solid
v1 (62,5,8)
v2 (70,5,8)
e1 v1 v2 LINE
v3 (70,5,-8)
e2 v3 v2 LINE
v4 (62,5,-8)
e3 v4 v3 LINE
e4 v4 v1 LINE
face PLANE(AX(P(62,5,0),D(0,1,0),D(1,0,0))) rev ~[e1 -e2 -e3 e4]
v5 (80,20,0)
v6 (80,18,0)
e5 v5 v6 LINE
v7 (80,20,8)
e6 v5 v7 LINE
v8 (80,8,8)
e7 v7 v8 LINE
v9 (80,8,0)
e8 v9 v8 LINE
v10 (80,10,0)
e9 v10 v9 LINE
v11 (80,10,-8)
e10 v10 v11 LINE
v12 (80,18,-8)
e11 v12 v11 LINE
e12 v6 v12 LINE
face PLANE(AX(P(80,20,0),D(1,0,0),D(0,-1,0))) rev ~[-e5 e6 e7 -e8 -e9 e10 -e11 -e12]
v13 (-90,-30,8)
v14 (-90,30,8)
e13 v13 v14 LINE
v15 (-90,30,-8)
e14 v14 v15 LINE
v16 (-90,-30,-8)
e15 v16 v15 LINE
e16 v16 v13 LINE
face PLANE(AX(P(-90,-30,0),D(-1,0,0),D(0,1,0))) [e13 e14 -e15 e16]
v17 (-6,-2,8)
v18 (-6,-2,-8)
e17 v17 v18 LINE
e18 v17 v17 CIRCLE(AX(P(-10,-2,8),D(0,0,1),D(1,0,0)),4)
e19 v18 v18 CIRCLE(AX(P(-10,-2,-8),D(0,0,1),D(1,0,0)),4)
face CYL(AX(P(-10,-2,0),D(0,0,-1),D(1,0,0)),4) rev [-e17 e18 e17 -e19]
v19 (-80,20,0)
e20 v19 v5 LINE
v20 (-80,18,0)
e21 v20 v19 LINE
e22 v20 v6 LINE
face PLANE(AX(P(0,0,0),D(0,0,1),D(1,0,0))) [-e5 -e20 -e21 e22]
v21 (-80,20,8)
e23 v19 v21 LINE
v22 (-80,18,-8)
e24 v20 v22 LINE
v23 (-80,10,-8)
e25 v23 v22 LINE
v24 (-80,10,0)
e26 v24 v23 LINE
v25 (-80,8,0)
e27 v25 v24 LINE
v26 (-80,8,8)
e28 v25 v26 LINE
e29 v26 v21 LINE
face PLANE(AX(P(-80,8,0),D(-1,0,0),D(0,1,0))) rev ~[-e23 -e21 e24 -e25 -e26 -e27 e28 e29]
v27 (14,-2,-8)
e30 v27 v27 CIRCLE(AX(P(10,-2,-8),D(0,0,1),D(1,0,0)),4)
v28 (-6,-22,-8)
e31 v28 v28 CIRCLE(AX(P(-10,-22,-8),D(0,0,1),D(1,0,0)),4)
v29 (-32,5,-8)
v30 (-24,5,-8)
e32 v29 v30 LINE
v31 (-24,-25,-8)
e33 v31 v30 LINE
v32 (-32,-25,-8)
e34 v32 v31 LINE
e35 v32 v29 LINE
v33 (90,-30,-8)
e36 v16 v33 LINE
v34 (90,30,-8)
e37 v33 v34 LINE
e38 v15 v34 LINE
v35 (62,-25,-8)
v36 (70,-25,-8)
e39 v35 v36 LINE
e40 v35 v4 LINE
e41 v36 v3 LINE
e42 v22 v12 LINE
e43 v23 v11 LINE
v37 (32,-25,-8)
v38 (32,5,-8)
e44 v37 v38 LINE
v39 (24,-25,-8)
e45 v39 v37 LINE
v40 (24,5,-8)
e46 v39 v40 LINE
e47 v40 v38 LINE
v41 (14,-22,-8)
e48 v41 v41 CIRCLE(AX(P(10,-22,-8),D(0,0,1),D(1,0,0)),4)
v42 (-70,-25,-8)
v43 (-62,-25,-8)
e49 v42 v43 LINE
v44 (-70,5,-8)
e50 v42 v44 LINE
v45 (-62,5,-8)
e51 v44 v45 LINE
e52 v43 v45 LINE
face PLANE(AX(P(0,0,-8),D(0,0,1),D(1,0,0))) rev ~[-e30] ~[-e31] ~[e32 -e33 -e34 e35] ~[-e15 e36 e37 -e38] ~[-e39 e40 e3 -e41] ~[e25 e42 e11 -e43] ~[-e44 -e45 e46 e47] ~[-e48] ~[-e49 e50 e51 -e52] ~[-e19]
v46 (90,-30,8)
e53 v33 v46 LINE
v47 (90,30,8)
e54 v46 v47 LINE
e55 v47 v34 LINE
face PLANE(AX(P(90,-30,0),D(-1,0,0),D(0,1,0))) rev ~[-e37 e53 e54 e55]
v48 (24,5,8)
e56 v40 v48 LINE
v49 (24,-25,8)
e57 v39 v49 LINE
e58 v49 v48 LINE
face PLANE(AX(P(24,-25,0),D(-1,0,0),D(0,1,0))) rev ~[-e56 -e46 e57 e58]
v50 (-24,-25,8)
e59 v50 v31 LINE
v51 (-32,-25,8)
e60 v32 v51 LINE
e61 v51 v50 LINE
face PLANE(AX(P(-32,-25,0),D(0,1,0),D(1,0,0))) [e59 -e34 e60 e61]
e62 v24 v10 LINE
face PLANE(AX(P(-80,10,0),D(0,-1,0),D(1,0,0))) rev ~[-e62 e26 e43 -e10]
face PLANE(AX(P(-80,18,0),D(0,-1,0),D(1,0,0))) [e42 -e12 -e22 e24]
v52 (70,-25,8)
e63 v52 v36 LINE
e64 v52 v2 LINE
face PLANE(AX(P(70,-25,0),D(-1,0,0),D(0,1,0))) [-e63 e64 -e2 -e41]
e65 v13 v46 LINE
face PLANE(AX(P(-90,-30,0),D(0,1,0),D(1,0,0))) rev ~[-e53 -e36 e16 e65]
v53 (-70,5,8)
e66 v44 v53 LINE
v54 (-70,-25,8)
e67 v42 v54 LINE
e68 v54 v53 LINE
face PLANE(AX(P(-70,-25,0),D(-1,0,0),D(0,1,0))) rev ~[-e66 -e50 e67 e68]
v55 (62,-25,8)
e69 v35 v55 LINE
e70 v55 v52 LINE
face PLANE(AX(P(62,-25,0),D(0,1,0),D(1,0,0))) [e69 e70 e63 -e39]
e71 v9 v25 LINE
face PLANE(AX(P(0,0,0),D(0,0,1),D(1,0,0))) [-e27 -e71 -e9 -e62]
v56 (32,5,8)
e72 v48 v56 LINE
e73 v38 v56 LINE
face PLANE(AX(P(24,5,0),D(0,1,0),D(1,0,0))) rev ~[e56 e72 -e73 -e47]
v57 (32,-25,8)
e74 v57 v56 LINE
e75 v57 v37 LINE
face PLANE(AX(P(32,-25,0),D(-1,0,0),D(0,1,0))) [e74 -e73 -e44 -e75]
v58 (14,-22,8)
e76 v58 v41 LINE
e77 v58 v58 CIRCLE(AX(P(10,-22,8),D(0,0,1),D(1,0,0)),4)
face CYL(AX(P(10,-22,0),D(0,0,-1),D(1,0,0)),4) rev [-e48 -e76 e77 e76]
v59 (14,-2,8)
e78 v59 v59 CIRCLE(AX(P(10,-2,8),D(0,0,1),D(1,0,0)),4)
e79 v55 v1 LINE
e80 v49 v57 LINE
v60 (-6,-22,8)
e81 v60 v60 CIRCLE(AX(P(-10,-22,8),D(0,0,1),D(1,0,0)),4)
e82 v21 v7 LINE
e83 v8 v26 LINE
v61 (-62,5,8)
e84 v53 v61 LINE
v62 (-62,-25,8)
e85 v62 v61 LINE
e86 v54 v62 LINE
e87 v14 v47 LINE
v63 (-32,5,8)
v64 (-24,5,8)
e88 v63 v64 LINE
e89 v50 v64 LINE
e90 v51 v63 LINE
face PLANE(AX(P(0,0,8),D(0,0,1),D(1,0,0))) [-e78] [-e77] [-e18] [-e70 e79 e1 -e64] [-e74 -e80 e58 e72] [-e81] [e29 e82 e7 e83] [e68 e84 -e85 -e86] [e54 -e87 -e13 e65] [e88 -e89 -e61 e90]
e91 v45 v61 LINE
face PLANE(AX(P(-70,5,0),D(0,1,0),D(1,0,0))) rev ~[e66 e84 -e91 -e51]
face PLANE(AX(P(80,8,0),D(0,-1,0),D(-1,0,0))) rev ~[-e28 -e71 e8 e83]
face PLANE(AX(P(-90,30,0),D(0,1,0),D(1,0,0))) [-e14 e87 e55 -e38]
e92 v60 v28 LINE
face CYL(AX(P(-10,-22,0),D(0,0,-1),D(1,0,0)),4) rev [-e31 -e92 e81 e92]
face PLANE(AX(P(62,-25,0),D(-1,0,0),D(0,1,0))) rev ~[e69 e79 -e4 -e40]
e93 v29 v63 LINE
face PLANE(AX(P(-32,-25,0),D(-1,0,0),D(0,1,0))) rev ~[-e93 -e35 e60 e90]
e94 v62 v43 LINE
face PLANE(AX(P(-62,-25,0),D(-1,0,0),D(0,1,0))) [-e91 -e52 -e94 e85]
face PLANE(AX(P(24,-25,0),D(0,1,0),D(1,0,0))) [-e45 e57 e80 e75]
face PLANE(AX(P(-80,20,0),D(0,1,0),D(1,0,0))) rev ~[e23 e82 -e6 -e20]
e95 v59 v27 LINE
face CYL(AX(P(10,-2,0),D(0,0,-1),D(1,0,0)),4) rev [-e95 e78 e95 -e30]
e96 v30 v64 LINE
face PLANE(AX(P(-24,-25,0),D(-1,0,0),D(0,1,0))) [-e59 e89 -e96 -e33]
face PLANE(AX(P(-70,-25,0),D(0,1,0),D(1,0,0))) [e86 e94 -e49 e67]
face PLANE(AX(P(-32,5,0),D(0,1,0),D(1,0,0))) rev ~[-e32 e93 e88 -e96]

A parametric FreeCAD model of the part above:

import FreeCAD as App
import Part
import Sketcher

doc = App.newDocument("Part")
params = doc.addObject("Spreadsheet::Sheet", "Params")
for row, (alias, value) in enumerate([
    ("sketch1_diameter", "8 mm"),
    ("sketch1_width", "180 mm"),
    ("sketch1_width2", "8 mm"),
    ("sketch1_width3", "160 mm"),
    ("sketch1_height", "60 mm"),
    ("pad1_length", "8 mm"),
    ("sketch2_diameter", "8 mm"),
    ("sketch2_width", "180 mm"),
    ("sketch2_width2", "8 mm"),
    ("sketch2_width3", "160 mm"),
    ("sketch2_height", "60 mm"),
    ("pad2_length", "8 mm"),
], start=1):
    params.set(f"A{row}", alias)
    params.set(f"B{row}", "=" + value)
    params.setAlias(f"B{row}", alias)

body = doc.addObject("PartDesign::Body", "Body")

# Sketch on XY plane
sketch1 = body.newObject("Sketcher::SketchObject", "Sketch")
sketch1.AttachmentSupport = (doc.getObject("XY_Plane"), [""])
sketch1.MapMode = "FlatFace"
sketch1.addGeometry([
    Part.LineSegment(App.Vector(-90, 30, 0), App.Vector(-90, -30, 0)),  # 0
    Part.LineSegment(App.Vector(-90, -30, 0), App.Vector(90, -30, 0)),  # 1
    Part.LineSegment(App.Vector(90, -30, 0), App.Vector(90, 30, 0)),  # 2
    Part.LineSegment(App.Vector(90, 30, 0), App.Vector(-90, 30, 0)),  # 3
    Part.Circle(App.Vector(-10, -22, 0), App.Vector(0, 0, 1), 4),  # 4
    Part.LineSegment(App.Vector(-62, -25, 0), App.Vector(-70, -25, 0)),  # 5
    Part.LineSegment(App.Vector(-70, -25, 0), App.Vector(-70, 5, 0)),  # 6
    Part.LineSegment(App.Vector(-70, 5, 0), App.Vector(-62, 5, 0)),  # 7
    Part.LineSegment(App.Vector(-62, 5, 0), App.Vector(-62, -25, 0)),  # 8
    Part.LineSegment(App.Vector(-24, -25, 0), App.Vector(-32, -25, 0)),  # 9
    Part.LineSegment(App.Vector(-32, -25, 0), App.Vector(-32, 5, 0)),  # 10
    Part.LineSegment(App.Vector(-32, 5, 0), App.Vector(-24, 5, 0)),  # 11
    Part.LineSegment(App.Vector(-24, 5, 0), App.Vector(-24, -25, 0)),  # 12
    Part.Circle(App.Vector(10, -22, 0), App.Vector(0, 0, 1), 4),  # 13
    Part.LineSegment(App.Vector(32, -25, 0), App.Vector(24, -25, 0)),  # 14
    Part.LineSegment(App.Vector(24, -25, 0), App.Vector(24, 5, 0)),  # 15
    Part.LineSegment(App.Vector(24, 5, 0), App.Vector(32, 5, 0)),  # 16
    Part.LineSegment(App.Vector(32, 5, 0), App.Vector(32, -25, 0)),  # 17
    Part.LineSegment(App.Vector(70, -25, 0), App.Vector(62, -25, 0)),  # 18
    Part.LineSegment(App.Vector(62, -25, 0), App.Vector(62, 5, 0)),  # 19
    Part.LineSegment(App.Vector(62, 5, 0), App.Vector(70, 5, 0)),  # 20
    Part.LineSegment(App.Vector(70, 5, 0), App.Vector(70, -25, 0)),  # 21
    Part.Circle(App.Vector(-10, -2, 0), App.Vector(0, 0, 1), 4),  # 22
    Part.Circle(App.Vector(10, -2, 0), App.Vector(0, 0, 1), 4),  # 23
    Part.LineSegment(App.Vector(-80, 10, 0), App.Vector(-80, 18, 0)),  # 24
    Part.LineSegment(App.Vector(-80, 18, 0), App.Vector(80, 18, 0)),  # 25
    Part.LineSegment(App.Vector(80, 18, 0), App.Vector(80, 10, 0)),  # 26
    Part.LineSegment(App.Vector(80, 10, 0), App.Vector(-80, 10, 0)),  # 27
], False)
sketch1.addConstraint([
    Sketcher.Constraint("Coincident", 0, 2, 1, 1),
    Sketcher.Constraint("Coincident", 1, 2, 2, 1),
    Sketcher.Constraint("Coincident", 2, 2, 3, 1),
    Sketcher.Constraint("Coincident", 3, 2, 0, 1),
    Sketcher.Constraint("Coincident", 5, 2, 6, 1),
    Sketcher.Constraint("Coincident", 6, 2, 7, 1),
    Sketcher.Constraint("Coincident", 7, 2, 8, 1),
    Sketcher.Constraint("Coincident", 8, 2, 5, 1),
    Sketcher.Constraint("Coincident", 9, 2, 10, 1),
    Sketcher.Constraint("Coincident", 10, 2, 11, 1),
    Sketcher.Constraint("Coincident", 11, 2, 12, 1),
    Sketcher.Constraint("Coincident", 12, 2, 9, 1),
    Sketcher.Constraint("Coincident", 14, 2, 15, 1),
    Sketcher.Constraint("Coincident", 15, 2, 16, 1),
    Sketcher.Constraint("Coincident", 16, 2, 17, 1),
    Sketcher.Constraint("Coincident", 17, 2, 14, 1),
    Sketcher.Constraint("Coincident", 18, 2, 19, 1),
    Sketcher.Constraint("Coincident", 19, 2, 20, 1),
    Sketcher.Constraint("Coincident", 20, 2, 21, 1),
    Sketcher.Constraint("Coincident", 21, 2, 18, 1),
    Sketcher.Constraint("Coincident", 24, 2, 25, 1),
    Sketcher.Constraint("Coincident", 25, 2, 26, 1),
    Sketcher.Constraint("Coincident", 26, 2, 27, 1),
    Sketcher.Constraint("Coincident", 27, 2, 24, 1),
    Sketcher.Constraint("Vertical", 0),
    Sketcher.Constraint("Horizontal", 1),
    Sketcher.Constraint("Vertical", 2),
    Sketcher.Constraint("Horizontal", 3),
    Sketcher.Constraint("Horizontal", 5),
    Sketcher.Constraint("Vertical", 6),
    Sketcher.Constraint("Horizontal", 7),
    Sketcher.Constraint("Vertical", 8),
    Sketcher.Constraint("Horizontal", 9),
    Sketcher.Constraint("Vertical", 10),
    Sketcher.Constraint("Horizontal", 11),
    Sketcher.Constraint("Vertical", 12),
    Sketcher.Constraint("Horizontal", 14),
    Sketcher.Constraint("Vertical", 15),
    Sketcher.Constraint("Horizontal", 16),
    Sketcher.Constraint("Vertical", 17),
    Sketcher.Constraint("Horizontal", 18),
    Sketcher.Constraint("Vertical", 19),
    Sketcher.Constraint("Horizontal", 20),
    Sketcher.Constraint("Vertical", 21),
    Sketcher.Constraint("Vertical", 24),
    Sketcher.Constraint("Horizontal", 25),
    Sketcher.Constraint("Vertical", 26),
    Sketcher.Constraint("Horizontal", 27),
    Sketcher.Constraint("Equal", 4, 13),
    Sketcher.Constraint("Equal", 13, 22),
    Sketcher.Constraint("Equal", 22, 23),
    Sketcher.Constraint("Symmetric", 0, 2, 2, 2, -1, 1),
    Sketcher.Constraint("Symmetric", 4, 3, 13, 3, -2),
    Sketcher.Constraint("Symmetric", 22, 3, 23, 3, -2),
    Sketcher.Constraint("Symmetric", 12, 2, 14, 2, -2),
    Sketcher.Constraint("Symmetric", 10, 2, 16, 2, -2),
    Sketcher.Constraint("Symmetric", 8, 2, 18, 2, -2),
    Sketcher.Constraint("Symmetric", 6, 2, 20, 2, -2),
    Sketcher.Constraint("Horizontal", 8, 2, 9, 2),
    Sketcher.Constraint("Horizontal", 7, 2, 10, 2),
    Sketcher.Constraint("Vertical", 4, 3, 22, 3),
    Sketcher.Constraint("Equal", 7, 9),
    Sketcher.Constraint("Equal", 20, 24),
    Sketcher.Constraint("Diameter", 4, 8.0),
    Sketcher.Constraint("DistanceX", 1, 1, 1, 2, 180.0),
    Sketcher.Constraint("DistanceX", 5, 2, 5, 1, 8.0),
    Sketcher.Constraint("DistanceX", 25, 1, 25, 2, 160.0),
    Sketcher.Constraint("DistanceY", 0, 2, 0, 1, 60.0),
    Sketcher.Constraint("DistanceY", 6, 1, 6, 2, 30.0),
    Sketcher.Constraint("DistanceX", 4, 3, -1, 1, 10.0),
    Sketcher.Constraint("DistanceY", 4, 3, -1, 1, 22.0),
    Sketcher.Constraint("DistanceY", 22, 3, -1, 1, 2.0),
    Sketcher.Constraint("DistanceX", 5, 2, -1, 1, 70.0),
    Sketcher.Constraint("DistanceY", 5, 2, -1, 1, 25.0),
    Sketcher.Constraint("DistanceX", 9, 2, -1, 1, 32.0),
    Sketcher.Constraint("DistanceX", 24, 2, -1, 1, 80.0),
    Sketcher.Constraint("DistanceY", -1, 1, 24, 2, 18.0),
])
sketch1.setExpression("Constraints[63]", "Params.sketch1_diameter")
sketch1.setExpression("Constraints[64]", "Params.sketch1_width")
sketch1.setExpression("Constraints[65]", "Params.sketch1_width2")
sketch1.setExpression("Constraints[66]", "Params.sketch1_width3")
sketch1.setExpression("Constraints[67]", "Params.sketch1_height")
pad1 = body.newObject("PartDesign::Pad", "Pad")
pad1.Profile = sketch1
pad1.setExpression("Length", "Params.pad1_length")
pad1.Reversed = True

# Sketch on XY plane
sketch2 = body.newObject("Sketcher::SketchObject", "Sketch001")
sketch2.AttachmentSupport = (doc.getObject("XY_Plane"), [""])
sketch2.MapMode = "FlatFace"
sketch2.addGeometry([
    Part.LineSegment(App.Vector(-90, 30, 0), App.Vector(-90, -30, 0)),  # 0
    Part.LineSegment(App.Vector(-90, -30, 0), App.Vector(90, -30, 0)),  # 1
    Part.LineSegment(App.Vector(90, -30, 0), App.Vector(90, 30, 0)),  # 2
    Part.LineSegment(App.Vector(90, 30, 0), App.Vector(-90, 30, 0)),  # 3
    Part.Circle(App.Vector(-10, -22, 0), App.Vector(0, 0, 1), 4),  # 4
    Part.LineSegment(App.Vector(-62, -25, 0), App.Vector(-70, -25, 0)),  # 5
    Part.LineSegment(App.Vector(-70, -25, 0), App.Vector(-70, 5, 0)),  # 6
    Part.LineSegment(App.Vector(-70, 5, 0), App.Vector(-62, 5, 0)),  # 7
    Part.LineSegment(App.Vector(-62, 5, 0), App.Vector(-62, -25, 0)),  # 8
    Part.LineSegment(App.Vector(-24, -25, 0), App.Vector(-32, -25, 0)),  # 9
    Part.LineSegment(App.Vector(-32, -25, 0), App.Vector(-32, 5, 0)),  # 10
    Part.LineSegment(App.Vector(-32, 5, 0), App.Vector(-24, 5, 0)),  # 11
    Part.LineSegment(App.Vector(-24, 5, 0), App.Vector(-24, -25, 0)),  # 12
    Part.Circle(App.Vector(10, -22, 0), App.Vector(0, 0, 1), 4),  # 13
    Part.LineSegment(App.Vector(32, -25, 0), App.Vector(24, -25, 0)),  # 14
    Part.LineSegment(App.Vector(24, -25, 0), App.Vector(24, 5, 0)),  # 15
    Part.LineSegment(App.Vector(24, 5, 0), App.Vector(32, 5, 0)),  # 16
    Part.LineSegment(App.Vector(32, 5, 0), App.Vector(32, -25, 0)),  # 17
    Part.LineSegment(App.Vector(70, -25, 0), App.Vector(62, -25, 0)),  # 18
    Part.LineSegment(App.Vector(62, -25, 0), App.Vector(62, 5, 0)),  # 19
    Part.LineSegment(App.Vector(62, 5, 0), App.Vector(70, 5, 0)),  # 20
    Part.LineSegment(App.Vector(70, 5, 0), App.Vector(70, -25, 0)),  # 21
    Part.Circle(App.Vector(-10, -2, 0), App.Vector(0, 0, 1), 4),  # 22
    Part.Circle(App.Vector(10, -2, 0), App.Vector(0, 0, 1), 4),  # 23
    Part.LineSegment(App.Vector(-80, 8, 0), App.Vector(-80, 20, 0)),  # 24
    Part.LineSegment(App.Vector(-80, 20, 0), App.Vector(80, 20, 0)),  # 25
    Part.LineSegment(App.Vector(80, 20, 0), App.Vector(80, 8, 0)),  # 26
    Part.LineSegment(App.Vector(80, 8, 0), App.Vector(-80, 8, 0)),  # 27
], False)
sketch2.addConstraint([
    Sketcher.Constraint("Coincident", 0, 2, 1, 1),
    Sketcher.Constraint("Coincident", 1, 2, 2, 1),
    Sketcher.Constraint("Coincident", 2, 2, 3, 1),
    Sketcher.Constraint("Coincident", 3, 2, 0, 1),
    Sketcher.Constraint("Coincident", 5, 2, 6, 1),
    Sketcher.Constraint("Coincident", 6, 2, 7, 1),
    Sketcher.Constraint("Coincident", 7, 2, 8, 1),
    Sketcher.Constraint("Coincident", 8, 2, 5, 1),
    Sketcher.Constraint("Coincident", 9, 2, 10, 1),
    Sketcher.Constraint("Coincident", 10, 2, 11, 1),
    Sketcher.Constraint("Coincident", 11, 2, 12, 1),
    Sketcher.Constraint("Coincident", 12, 2, 9, 1),
    Sketcher.Constraint("Coincident", 14, 2, 15, 1),
    Sketcher.Constraint("Coincident", 15, 2, 16, 1),
    Sketcher.Constraint("Coincident", 16, 2, 17, 1),
    Sketcher.Constraint("Coincident", 17, 2, 14, 1),
    Sketcher.Constraint("Coincident", 18, 2, 19, 1),
    Sketcher.Constraint("Coincident", 19, 2, 20, 1),
    Sketcher.Constraint("Coincident", 20, 2, 21, 1),
    Sketcher.Constraint("Coincident", 21, 2, 18, 1),
    Sketcher.Constraint("Coincident", 24, 2, 25, 1),
    Sketcher.Constraint("Coincident", 25, 2, 26, 1),
    Sketcher.Constraint("Coincident", 26, 2, 27, 1),
    Sketcher.Constraint("Coincident", 27, 2, 24, 1),
    Sketcher.Constraint("Vertical", 0),
    Sketcher.Constraint("Horizontal", 1),
    Sketcher.Constraint("Vertical", 2),
    Sketcher.Constraint("Horizontal", 3),
    Sketcher.Constraint("Horizontal", 5),
    Sketcher.Constraint("Vertical", 6),
    Sketcher.Constraint("Horizontal", 7),
    Sketcher.Constraint("Vertical", 8),
    Sketcher.Constraint("Horizontal", 9),
    Sketcher.Constraint("Vertical", 10),
    Sketcher.Constraint("Horizontal", 11),
    Sketcher.Constraint("Vertical", 12),
    Sketcher.Constraint("Horizontal", 14),
    Sketcher.Constraint("Vertical", 15),
    Sketcher.Constraint("Horizontal", 16),
    Sketcher.Constraint("Vertical", 17),
    Sketcher.Constraint("Horizontal", 18),
    Sketcher.Constraint("Vertical", 19),
    Sketcher.Constraint("Horizontal", 20),
    Sketcher.Constraint("Vertical", 21),
    Sketcher.Constraint("Vertical", 24),
    Sketcher.Constraint("Horizontal", 25),
    Sketcher.Constraint("Vertical", 26),
    Sketcher.Constraint("Horizontal", 27),
    Sketcher.Constraint("Equal", 4, 13),
    Sketcher.Constraint("Equal", 13, 22),
    Sketcher.Constraint("Equal", 22, 23),
    Sketcher.Constraint("Symmetric", 0, 2, 2, 2, -1, 1),
    Sketcher.Constraint("Symmetric", 4, 3, 13, 3, -2),
    Sketcher.Constraint("Symmetric", 22, 3, 23, 3, -2),
    Sketcher.Constraint("Symmetric", 12, 2, 14, 2, -2),
    Sketcher.Constraint("Symmetric", 10, 2, 16, 2, -2),
    Sketcher.Constraint("Symmetric", 8, 2, 18, 2, -2),
    Sketcher.Constraint("Symmetric", 6, 2, 20, 2, -2),
    Sketcher.Constraint("Horizontal", 8, 2, 9, 2),
    Sketcher.Constraint("Horizontal", 7, 2, 10, 2),
    Sketcher.Constraint("Vertical", 4, 3, 22, 3),
    Sketcher.Constraint("Equal", 7, 9),
    Sketcher.Constraint("Diameter", 4, 8.0),
    Sketcher.Constraint("DistanceX", 1, 1, 1, 2, 180.0),
    Sketcher.Constraint("DistanceX", 5, 2, 5, 1, 8.0),
    Sketcher.Constraint("DistanceX", 25, 1, 25, 2, 160.0),
    Sketcher.Constraint("DistanceY", 0, 2, 0, 1, 60.0),
    Sketcher.Constraint("DistanceY", 6, 1, 6, 2, 30.0),
    Sketcher.Constraint("DistanceY", 24, 1, 24, 2, 12.0),
    Sketcher.Constraint("DistanceX", 4, 3, -1, 1, 10.0),
    Sketcher.Constraint("DistanceY", 4, 3, -1, 1, 22.0),
    Sketcher.Constraint("DistanceY", 22, 3, -1, 1, 2.0),
    Sketcher.Constraint("DistanceX", 5, 2, -1, 1, 70.0),
    Sketcher.Constraint("DistanceY", 5, 2, -1, 1, 25.0),
    Sketcher.Constraint("DistanceX", 9, 2, -1, 1, 32.0),
    Sketcher.Constraint("DistanceX", 24, 2, -1, 1, 80.0),
    Sketcher.Constraint("DistanceY", -1, 1, 24, 2, 20.0),
])
sketch2.setExpression("Constraints[62]", "Params.sketch2_diameter")
sketch2.setExpression("Constraints[63]", "Params.sketch2_width")
sketch2.setExpression("Constraints[64]", "Params.sketch2_width2")
sketch2.setExpression("Constraints[65]", "Params.sketch2_width3")
sketch2.setExpression("Constraints[66]", "Params.sketch2_height")
pad2 = body.newObject("PartDesign::Pad", "Pad001")
pad2.Profile = sketch2
pad2.setExpression("Length", "Params.pad2_length")

doc.recompute()
